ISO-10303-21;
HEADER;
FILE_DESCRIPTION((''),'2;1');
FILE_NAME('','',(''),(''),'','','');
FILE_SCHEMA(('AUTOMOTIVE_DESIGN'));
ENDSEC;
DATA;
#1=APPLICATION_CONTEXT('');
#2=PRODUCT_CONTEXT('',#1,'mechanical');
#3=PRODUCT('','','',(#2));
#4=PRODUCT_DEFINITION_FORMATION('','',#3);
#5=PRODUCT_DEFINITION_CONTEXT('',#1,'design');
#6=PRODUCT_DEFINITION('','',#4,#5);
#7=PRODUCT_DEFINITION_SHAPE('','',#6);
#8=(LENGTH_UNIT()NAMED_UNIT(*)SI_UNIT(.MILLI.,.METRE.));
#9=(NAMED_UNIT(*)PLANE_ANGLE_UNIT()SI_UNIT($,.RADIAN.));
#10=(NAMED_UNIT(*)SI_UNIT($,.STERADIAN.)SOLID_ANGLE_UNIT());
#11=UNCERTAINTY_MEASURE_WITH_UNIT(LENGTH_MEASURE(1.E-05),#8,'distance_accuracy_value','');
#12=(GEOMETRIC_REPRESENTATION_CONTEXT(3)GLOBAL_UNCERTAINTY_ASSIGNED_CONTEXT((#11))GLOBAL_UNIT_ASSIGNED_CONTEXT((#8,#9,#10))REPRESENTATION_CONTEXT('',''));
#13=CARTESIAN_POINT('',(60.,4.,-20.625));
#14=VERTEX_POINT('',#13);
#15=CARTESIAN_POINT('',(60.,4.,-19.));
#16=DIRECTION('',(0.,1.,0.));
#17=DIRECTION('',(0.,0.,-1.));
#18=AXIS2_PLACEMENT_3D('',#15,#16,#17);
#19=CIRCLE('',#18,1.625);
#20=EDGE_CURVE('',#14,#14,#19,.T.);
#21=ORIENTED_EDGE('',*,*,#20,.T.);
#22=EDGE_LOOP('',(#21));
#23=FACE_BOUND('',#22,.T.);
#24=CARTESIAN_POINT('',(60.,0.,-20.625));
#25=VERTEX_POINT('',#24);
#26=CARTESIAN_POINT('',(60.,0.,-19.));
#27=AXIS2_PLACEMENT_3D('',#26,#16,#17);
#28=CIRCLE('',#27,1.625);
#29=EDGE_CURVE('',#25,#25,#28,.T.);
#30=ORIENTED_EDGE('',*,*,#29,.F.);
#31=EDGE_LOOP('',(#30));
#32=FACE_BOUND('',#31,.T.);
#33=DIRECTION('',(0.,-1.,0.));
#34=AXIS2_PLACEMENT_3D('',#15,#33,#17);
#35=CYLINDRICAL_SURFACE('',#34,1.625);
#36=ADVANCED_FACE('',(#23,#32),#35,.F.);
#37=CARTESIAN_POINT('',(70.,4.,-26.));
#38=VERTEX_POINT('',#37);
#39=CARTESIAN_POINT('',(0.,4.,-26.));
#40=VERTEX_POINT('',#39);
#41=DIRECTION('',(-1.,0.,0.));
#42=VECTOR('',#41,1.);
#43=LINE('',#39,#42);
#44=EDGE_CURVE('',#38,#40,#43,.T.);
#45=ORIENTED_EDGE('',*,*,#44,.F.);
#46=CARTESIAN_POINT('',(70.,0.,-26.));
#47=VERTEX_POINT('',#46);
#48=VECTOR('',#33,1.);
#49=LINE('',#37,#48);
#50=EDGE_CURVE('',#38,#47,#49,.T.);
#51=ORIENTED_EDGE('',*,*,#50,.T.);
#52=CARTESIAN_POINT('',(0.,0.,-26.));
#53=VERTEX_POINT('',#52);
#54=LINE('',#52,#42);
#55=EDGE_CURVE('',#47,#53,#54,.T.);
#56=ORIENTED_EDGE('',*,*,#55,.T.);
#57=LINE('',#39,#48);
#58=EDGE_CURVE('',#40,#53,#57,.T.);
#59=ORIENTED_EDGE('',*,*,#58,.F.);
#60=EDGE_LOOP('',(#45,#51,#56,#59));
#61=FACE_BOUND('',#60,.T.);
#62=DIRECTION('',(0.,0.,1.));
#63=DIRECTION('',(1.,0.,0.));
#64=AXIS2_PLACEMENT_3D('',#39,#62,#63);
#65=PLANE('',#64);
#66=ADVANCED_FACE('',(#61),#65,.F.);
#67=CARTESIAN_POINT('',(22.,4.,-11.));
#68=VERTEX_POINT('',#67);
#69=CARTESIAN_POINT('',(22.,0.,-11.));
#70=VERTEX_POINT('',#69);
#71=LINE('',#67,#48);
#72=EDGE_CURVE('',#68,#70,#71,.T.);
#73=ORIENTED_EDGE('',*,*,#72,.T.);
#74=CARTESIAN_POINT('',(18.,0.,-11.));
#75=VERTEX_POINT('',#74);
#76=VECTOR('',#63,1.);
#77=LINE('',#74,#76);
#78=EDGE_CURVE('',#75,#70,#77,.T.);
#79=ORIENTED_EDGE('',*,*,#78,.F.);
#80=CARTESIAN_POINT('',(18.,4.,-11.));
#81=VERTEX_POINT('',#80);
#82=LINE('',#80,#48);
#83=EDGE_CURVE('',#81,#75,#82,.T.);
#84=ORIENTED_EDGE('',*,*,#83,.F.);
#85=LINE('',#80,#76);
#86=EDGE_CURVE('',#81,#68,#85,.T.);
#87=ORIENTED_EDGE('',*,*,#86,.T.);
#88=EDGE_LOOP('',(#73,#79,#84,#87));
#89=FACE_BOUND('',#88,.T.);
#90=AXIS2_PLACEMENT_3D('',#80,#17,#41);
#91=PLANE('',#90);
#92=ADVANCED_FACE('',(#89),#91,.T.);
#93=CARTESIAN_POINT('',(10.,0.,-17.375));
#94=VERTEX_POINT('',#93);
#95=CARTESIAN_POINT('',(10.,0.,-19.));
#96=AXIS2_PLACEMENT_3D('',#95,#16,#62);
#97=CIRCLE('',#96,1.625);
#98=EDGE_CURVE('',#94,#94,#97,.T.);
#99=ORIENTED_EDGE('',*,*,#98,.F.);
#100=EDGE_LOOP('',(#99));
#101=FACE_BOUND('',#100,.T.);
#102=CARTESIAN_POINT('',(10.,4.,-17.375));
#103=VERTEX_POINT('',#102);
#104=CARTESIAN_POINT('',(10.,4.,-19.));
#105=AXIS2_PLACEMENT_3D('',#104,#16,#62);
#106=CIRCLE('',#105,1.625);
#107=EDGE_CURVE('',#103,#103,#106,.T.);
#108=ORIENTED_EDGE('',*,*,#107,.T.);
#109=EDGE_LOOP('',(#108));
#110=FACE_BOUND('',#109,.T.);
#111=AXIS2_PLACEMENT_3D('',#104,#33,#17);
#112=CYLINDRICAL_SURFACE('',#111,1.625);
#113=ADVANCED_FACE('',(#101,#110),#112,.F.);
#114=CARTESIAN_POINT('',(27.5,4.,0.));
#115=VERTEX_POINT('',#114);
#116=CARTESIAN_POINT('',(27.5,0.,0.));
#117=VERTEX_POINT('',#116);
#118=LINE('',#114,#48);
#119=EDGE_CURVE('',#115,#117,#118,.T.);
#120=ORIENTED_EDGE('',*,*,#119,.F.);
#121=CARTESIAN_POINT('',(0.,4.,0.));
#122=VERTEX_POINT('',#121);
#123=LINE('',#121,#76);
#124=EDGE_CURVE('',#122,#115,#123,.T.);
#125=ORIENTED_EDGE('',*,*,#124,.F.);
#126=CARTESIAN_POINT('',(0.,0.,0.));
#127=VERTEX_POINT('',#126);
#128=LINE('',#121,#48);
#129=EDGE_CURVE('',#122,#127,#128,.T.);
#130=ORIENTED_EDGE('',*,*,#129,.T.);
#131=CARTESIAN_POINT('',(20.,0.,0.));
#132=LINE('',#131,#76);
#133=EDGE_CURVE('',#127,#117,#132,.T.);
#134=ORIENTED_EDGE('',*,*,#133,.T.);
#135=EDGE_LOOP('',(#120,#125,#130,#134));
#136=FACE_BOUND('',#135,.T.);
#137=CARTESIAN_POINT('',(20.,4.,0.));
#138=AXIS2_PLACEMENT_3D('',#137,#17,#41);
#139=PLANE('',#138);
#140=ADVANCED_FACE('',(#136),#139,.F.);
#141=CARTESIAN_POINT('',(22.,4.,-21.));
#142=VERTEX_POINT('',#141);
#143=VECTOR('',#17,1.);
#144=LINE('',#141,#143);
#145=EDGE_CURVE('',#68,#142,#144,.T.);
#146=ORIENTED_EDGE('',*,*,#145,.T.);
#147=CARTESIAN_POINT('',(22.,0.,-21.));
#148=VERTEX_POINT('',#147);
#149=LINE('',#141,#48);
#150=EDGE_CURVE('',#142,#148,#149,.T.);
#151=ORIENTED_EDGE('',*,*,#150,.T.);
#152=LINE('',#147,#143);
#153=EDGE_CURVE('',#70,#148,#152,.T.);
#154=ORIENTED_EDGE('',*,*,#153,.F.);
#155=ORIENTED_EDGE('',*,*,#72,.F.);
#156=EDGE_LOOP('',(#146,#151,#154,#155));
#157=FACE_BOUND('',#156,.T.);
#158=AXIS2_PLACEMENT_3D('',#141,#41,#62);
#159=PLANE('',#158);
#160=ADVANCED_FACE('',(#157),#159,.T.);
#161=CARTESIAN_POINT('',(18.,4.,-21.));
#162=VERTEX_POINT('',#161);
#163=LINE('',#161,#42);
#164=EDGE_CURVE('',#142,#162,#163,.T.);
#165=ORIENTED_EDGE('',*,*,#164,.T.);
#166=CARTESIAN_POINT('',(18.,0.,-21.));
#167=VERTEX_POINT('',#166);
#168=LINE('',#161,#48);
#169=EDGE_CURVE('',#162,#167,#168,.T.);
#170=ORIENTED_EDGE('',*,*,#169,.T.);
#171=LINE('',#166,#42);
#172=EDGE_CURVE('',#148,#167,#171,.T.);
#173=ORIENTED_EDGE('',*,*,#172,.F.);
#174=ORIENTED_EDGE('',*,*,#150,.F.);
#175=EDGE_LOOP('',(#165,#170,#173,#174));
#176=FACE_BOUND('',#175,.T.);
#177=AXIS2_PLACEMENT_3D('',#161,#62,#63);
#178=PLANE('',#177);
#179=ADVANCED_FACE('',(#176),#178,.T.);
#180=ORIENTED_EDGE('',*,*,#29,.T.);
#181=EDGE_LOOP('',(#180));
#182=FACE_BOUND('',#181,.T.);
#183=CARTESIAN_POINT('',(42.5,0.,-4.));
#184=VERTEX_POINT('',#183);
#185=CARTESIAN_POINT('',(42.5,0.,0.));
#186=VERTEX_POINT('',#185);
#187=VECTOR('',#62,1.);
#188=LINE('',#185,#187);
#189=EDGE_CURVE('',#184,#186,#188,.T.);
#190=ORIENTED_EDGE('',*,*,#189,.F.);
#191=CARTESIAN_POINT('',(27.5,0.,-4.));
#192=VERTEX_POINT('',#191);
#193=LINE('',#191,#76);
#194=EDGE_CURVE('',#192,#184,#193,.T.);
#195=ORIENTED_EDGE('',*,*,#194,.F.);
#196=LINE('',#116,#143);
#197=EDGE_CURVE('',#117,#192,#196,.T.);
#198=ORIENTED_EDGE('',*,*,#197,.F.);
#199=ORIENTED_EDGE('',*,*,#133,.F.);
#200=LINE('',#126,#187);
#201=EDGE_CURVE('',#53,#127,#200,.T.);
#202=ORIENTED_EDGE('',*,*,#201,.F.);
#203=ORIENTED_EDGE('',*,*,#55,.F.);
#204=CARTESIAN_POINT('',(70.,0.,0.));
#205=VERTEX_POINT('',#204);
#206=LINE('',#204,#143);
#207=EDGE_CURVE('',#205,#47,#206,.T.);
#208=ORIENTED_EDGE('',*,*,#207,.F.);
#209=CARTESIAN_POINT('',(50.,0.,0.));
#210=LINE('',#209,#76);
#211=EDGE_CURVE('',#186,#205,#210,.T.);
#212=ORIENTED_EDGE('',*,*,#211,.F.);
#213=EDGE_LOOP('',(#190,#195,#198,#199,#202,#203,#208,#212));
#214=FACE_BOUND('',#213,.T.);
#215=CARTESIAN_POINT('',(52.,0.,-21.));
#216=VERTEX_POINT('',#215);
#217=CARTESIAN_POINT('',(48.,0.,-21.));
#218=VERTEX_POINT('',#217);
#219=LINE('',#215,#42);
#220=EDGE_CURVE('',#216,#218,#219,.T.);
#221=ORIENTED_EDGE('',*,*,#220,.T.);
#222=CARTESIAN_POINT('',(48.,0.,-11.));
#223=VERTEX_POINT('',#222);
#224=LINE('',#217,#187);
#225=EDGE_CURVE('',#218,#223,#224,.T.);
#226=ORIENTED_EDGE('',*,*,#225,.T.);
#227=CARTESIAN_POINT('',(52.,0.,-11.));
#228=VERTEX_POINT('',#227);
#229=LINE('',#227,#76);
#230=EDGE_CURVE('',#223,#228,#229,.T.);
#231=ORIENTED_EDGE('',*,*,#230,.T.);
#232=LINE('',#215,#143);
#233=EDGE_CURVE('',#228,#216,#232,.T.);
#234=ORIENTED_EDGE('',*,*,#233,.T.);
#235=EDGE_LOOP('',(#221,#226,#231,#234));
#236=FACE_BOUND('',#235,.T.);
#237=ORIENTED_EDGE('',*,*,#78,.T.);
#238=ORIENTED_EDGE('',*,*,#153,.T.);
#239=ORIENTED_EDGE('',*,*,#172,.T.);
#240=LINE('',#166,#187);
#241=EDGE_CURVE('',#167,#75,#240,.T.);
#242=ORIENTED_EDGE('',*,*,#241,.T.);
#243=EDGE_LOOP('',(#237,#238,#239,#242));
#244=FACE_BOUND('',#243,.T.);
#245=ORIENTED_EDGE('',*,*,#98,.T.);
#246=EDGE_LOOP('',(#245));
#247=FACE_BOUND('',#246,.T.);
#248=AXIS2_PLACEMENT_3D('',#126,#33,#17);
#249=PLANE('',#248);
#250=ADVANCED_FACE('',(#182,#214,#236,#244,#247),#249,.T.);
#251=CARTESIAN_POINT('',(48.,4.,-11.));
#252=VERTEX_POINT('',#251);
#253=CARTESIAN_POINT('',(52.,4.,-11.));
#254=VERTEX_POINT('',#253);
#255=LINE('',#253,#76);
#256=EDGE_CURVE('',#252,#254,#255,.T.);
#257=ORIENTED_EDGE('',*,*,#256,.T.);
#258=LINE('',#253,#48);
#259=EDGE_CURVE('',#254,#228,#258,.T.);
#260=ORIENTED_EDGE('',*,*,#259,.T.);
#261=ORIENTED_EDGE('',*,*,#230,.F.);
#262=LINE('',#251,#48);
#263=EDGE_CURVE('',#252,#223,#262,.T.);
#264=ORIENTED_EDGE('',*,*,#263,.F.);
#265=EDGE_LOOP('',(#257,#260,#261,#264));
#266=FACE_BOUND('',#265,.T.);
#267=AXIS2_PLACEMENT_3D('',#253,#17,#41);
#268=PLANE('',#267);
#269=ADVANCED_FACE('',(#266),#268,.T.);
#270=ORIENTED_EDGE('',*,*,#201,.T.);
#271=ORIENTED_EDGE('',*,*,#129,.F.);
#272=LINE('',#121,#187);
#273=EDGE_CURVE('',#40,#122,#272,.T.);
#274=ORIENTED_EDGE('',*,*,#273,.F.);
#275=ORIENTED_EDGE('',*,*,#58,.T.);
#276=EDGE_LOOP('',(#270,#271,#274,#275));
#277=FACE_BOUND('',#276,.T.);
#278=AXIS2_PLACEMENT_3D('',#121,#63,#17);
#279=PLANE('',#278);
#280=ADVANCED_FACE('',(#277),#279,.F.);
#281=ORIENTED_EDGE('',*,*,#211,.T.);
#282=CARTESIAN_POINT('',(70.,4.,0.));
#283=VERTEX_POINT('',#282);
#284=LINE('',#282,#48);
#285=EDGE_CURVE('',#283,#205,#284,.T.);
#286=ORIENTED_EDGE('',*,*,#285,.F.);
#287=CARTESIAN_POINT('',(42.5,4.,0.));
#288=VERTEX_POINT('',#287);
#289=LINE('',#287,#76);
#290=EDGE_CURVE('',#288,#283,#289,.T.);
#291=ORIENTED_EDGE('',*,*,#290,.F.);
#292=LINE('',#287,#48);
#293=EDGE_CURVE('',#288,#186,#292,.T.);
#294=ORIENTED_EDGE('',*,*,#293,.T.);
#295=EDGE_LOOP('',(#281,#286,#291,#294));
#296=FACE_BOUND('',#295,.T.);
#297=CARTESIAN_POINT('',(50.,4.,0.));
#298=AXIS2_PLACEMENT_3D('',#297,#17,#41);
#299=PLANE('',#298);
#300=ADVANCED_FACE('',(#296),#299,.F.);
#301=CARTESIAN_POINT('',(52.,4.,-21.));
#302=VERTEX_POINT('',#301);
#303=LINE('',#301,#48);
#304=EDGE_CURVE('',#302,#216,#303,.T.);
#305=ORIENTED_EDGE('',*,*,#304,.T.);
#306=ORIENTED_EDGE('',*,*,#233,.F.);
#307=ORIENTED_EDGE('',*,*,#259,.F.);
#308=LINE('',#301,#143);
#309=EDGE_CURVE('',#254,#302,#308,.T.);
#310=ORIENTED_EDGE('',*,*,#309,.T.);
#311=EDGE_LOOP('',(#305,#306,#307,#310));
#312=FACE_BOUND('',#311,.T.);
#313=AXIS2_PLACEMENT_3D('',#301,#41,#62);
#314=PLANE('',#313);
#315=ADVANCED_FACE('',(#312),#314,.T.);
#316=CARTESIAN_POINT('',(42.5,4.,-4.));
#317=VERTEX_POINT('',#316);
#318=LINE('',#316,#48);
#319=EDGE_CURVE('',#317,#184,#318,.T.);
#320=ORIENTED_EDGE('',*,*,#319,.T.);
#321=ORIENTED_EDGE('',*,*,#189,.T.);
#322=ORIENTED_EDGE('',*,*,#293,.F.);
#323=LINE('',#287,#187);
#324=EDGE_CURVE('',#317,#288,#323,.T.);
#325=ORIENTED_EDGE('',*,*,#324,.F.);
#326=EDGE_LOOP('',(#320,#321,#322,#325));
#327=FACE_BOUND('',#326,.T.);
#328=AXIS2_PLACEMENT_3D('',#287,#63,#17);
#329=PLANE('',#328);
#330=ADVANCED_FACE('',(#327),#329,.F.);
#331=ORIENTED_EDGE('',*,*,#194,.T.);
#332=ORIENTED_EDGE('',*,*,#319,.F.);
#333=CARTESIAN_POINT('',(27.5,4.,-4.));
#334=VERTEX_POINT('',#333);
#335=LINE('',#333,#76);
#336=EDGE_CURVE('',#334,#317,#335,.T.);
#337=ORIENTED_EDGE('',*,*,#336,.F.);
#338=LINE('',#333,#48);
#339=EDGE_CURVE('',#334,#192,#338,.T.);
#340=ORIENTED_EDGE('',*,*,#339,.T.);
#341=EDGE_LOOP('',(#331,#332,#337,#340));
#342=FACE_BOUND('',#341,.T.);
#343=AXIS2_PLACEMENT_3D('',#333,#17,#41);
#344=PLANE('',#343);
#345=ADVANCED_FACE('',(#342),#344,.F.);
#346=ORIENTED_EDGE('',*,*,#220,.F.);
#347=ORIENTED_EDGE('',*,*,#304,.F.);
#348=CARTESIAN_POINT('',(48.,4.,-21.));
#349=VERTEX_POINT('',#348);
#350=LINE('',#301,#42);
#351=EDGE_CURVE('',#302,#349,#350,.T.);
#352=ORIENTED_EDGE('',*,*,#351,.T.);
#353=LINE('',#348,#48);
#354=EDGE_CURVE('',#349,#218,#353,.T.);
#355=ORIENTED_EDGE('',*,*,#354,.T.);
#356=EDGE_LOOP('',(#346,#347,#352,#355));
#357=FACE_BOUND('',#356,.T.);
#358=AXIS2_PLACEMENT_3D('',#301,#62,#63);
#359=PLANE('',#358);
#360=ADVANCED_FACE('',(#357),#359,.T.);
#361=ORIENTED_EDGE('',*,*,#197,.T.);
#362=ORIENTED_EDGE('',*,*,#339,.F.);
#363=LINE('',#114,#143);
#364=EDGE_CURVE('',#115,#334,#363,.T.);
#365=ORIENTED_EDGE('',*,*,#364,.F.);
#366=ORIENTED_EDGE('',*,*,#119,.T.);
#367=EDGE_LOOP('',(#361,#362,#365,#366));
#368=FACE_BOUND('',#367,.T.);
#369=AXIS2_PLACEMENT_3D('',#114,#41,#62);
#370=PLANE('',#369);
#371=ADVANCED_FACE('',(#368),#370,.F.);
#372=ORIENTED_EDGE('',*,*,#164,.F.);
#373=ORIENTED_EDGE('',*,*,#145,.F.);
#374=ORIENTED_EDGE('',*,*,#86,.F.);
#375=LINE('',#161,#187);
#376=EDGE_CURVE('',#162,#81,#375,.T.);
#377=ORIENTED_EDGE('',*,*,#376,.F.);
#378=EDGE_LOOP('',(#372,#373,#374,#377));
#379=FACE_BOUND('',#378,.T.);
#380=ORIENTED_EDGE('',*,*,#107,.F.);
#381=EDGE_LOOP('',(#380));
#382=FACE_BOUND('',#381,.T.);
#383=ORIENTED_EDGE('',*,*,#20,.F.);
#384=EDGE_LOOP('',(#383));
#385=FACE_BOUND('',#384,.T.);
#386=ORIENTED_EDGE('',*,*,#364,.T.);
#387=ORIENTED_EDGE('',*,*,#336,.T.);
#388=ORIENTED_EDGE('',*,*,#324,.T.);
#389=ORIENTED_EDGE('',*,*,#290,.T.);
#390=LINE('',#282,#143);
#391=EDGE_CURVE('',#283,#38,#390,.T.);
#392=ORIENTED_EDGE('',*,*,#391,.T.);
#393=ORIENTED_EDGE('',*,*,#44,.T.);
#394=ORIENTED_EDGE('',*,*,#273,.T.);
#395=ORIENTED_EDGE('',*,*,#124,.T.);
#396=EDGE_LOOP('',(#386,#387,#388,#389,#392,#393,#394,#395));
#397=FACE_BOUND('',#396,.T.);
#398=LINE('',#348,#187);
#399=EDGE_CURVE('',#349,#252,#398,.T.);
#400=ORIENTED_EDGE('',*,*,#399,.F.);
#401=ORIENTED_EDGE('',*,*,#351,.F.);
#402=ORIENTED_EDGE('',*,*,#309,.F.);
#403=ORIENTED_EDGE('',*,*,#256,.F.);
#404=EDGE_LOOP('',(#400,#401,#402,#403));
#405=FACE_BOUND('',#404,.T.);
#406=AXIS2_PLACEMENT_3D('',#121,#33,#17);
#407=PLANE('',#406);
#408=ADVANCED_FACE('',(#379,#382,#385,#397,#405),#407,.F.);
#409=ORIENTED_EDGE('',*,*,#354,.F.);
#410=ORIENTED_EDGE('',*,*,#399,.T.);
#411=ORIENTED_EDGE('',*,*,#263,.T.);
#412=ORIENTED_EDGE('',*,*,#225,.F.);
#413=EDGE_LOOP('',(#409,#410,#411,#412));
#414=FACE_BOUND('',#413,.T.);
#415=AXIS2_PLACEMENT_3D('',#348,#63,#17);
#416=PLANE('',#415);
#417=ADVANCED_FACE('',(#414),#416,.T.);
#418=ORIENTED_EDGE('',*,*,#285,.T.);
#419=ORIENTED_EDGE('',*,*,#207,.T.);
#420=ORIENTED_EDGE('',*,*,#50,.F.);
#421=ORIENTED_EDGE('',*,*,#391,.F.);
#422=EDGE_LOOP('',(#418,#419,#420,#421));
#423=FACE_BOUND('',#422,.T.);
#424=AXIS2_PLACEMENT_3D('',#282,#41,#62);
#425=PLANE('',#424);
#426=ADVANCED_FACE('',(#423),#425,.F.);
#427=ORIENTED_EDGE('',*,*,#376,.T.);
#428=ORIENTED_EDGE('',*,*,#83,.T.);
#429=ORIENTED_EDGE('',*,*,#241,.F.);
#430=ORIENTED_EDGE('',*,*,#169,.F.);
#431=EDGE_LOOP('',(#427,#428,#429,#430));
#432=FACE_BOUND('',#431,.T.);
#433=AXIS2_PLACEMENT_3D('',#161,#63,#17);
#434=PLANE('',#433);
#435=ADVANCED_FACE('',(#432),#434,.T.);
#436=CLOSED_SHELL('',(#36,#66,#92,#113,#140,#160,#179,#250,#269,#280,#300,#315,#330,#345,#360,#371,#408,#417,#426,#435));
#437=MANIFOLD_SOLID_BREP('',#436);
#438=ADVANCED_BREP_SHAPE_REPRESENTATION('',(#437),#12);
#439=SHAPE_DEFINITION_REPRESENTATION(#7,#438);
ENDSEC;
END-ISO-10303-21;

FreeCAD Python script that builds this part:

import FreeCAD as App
import Part
import Sketcher
Q = App.Units.Quantity


def add_polygon(sketch, points):
    """Adds a closed chain of lines whose ends are joined by coincident constraints."""
    first, n = sketch.GeometryCount, len(points)
    for a, b in zip(points, points[1:] + points[:1]):
        sketch.addGeometry(Part.LineSegment(App.Vector(*a, 0), App.Vector(*b, 0)), False)
    for i in range(n):
        sketch.addConstraint(Sketcher.Constraint("Coincident", first + i, 2, first + (i + 1) % n, 1))

doc = App.newDocument("Part")
body = doc.addObject("PartDesign::Body", "Body")

# Sketch on XZ plane
sketch1 = doc.addObject("Sketcher::SketchObject", "Sketch")
body.addObject(sketch1)
sketch1.AttachmentSupport = (doc.XZ_Plane, [""])
sketch1.MapMode = "FlatFace"
add_polygon(sketch1, [(0, 0), (27.5, 0), (27.5, -4), (42.5, -4), (42.5, 0), (70, 0), (70, -26), (0, -26)])  # lines 0-7
add_polygon(sketch1, [(22, -11), (18, -11), (18, -21), (22, -21)])  # lines 8-11
sketch1.addGeometry(Part.Circle(App.Vector(10, -19, 0), App.Vector(0, 0, 1), 1.625), False)  # 12
add_polygon(sketch1, [(52, -11), (48, -11), (48, -21), (52, -21)])  # lines 13-16
sketch1.addGeometry(Part.Circle(App.Vector(60, -19, 0), App.Vector(0, 0, 1), 1.625), False)  # 17
sketch1.addConstraint([
    Sketcher.Constraint("Horizontal", 0),
    Sketcher.Constraint("Vertical", 1),
    Sketcher.Constraint("Horizontal", 2),
    Sketcher.Constraint("Vertical", 3),
    Sketcher.Constraint("Horizontal", 4),
    Sketcher.Constraint("Vertical", 5),
    Sketcher.Constraint("Horizontal", 6),
    Sketcher.Constraint("Vertical", 7),
    Sketcher.Constraint("Horizontal", 8),
    Sketcher.Constraint("Vertical", 9),
    Sketcher.Constraint("Horizontal", 10),
    Sketcher.Constraint("Vertical", 11),
    Sketcher.Constraint("Horizontal", 13),
    Sketcher.Constraint("Vertical", 14),
    Sketcher.Constraint("Horizontal", 15),
    Sketcher.Constraint("Vertical", 16),
    Sketcher.Constraint("Coincident", 7, 2, -1, 1),
    Sketcher.Constraint("Equal", 12, 17),
    Sketcher.Constraint("PointOnObject", 3, 2, -1),
    Sketcher.Constraint("Horizontal", 12, 3, 17, 3),
    Sketcher.Constraint("Horizontal", 11, 2, 13, 2),
    Sketcher.Constraint("Horizontal", 10, 2, 14, 2),
    Sketcher.Constraint("Equal", 0, 4),
    Sketcher.Constraint("Equal", 10, 13),
    Sketcher.Constraint("Equal", 15, 1),
    Sketcher.Constraint("Diameter", 12, Q("3.25 mm")),
    Sketcher.Constraint("DistanceX", 2, 1, 2, 2, Q("15 mm")),
    Sketcher.Constraint("DistanceX", 6, 2, 6, 1, Q("70 mm")),
    Sketcher.Constraint("DistanceX", 8, 2, 8, 1, Q("4 mm")),
    Sketcher.Constraint("DistanceY", 5, 2, 5, 1, Q("26 mm")),
    Sketcher.Constraint("DistanceY", 9, 2, 9, 1, Q("10 mm")),
    Sketcher.Constraint("DistanceX", -1, 1, 12, 3, Q("10 mm")),
    Sketcher.Constraint("DistanceY", 12, 3, -1, 1, Q("19 mm")),
    Sketcher.Constraint("DistanceX", -1, 1, 17, 3, Q("60 mm")),
    Sketcher.Constraint("DistanceX", -1, 1, 8, 2, Q("18 mm")),
    Sketcher.Constraint("DistanceY", 8, 2, -1, 1, Q("11 mm")),
    Sketcher.Constraint("DistanceX", -1, 1, 13, 2, Q("48 mm")),
])
pad1 = doc.addObject("PartDesign::Pad", "Pad")
body.addObject(pad1)
pad1.Profile = sketch1
pad1.Length = 4
pad1.Reversed = True

doc.recompute()
